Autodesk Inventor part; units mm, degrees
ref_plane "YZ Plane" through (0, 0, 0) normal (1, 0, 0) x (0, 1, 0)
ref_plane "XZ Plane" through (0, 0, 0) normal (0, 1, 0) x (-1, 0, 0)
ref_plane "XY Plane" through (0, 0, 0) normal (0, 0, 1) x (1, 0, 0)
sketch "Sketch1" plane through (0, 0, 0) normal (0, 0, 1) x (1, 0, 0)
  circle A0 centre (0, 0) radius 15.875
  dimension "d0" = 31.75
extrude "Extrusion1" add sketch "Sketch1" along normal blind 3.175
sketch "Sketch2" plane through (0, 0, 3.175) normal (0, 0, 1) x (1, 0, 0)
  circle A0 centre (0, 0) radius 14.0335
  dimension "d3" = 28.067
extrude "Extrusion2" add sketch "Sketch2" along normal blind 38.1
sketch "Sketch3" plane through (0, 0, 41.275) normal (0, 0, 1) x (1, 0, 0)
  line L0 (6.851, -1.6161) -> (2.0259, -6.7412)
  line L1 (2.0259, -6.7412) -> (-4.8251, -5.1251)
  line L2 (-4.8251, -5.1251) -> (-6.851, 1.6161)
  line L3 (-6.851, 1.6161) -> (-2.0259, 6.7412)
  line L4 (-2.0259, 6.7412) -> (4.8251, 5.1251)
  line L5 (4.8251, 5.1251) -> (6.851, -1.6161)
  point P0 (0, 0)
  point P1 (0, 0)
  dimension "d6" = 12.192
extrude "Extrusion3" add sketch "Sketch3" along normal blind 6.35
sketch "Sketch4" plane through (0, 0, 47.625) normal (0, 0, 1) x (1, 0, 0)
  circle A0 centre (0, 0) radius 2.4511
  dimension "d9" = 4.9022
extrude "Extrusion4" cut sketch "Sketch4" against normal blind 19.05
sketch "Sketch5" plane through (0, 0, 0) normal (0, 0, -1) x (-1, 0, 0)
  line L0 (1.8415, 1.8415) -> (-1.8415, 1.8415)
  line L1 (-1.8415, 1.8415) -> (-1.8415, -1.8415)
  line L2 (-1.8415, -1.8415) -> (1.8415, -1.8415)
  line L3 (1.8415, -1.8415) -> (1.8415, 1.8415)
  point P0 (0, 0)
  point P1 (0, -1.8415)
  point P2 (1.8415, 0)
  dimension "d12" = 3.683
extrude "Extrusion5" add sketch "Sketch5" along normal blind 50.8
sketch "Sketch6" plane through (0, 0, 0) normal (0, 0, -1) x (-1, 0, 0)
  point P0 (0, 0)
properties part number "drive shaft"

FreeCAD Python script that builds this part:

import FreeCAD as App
import Part
import Sketcher
from FreeCAD import Vector
Q = App.Units.Quantity

doc = App.newDocument("Part")
params = doc.addObject("Spreadsheet::Sheet", "Params")
for row, (alias, value) in enumerate([
    ("sketch1_diameter", "1.25 in"),
    ("pad1_length", "0.125 in"),
    ("sketch2_diameter", "1.105 in"),
    ("pad2_length", "1.5 in"),
    ("pad3_length", "0.25 in"),
    ("sketch4_diameter", "0.193 in"),
    ("pocket1_length", "0.75 in"),
    ("sketch5_width", "0.145 in"),
    ("pad4_length", "2 in"),
], start=1):
    params.set(f"A{row}", alias)
    params.set(f"B{row}", "=" + value)
    params.setAlias(f"B{row}", alias)

body = doc.addObject("PartDesign::Body", "Body")

# Sketch on XY plane
sketch1 = body.newObject("Sketcher::SketchObject", "Sketch")
sketch1.AttachmentSupport = (doc.getObject("XY_Plane"), [""])
sketch1.MapMode = "FlatFace"
sketch1.addGeometry(Part.Circle(Vector(0, 0, 0), Vector(0, 0, 1), 15.875), False)
sketch1.addConstraint([
    Sketcher.Constraint("Coincident", 0, 3, -1, 1),
    Sketcher.Constraint("Diameter", 0, Q("1.25 in")),
])
sketch1.setExpression("Constraints[1]", "Params.sketch1_diameter")
pad1 = body.newObject("PartDesign::Pad", "Pad")
pad1.Profile = sketch1
pad1.setExpression("Length", "Params.pad1_length")

# Sketch on XY plane
sketch2 = body.newObject("Sketcher::SketchObject", "Sketch001")
sketch2.AttachmentSupport = (doc.getObject("XY_Plane"), [""])
sketch2.MapMode = "FlatFace"
sketch2.AttachmentOffset = App.Placement(Vector(0, 0, 0.125 * 25.4), App.Rotation())
sketch2.addGeometry(Part.Circle(Vector(0, 0, 0), Vector(0, 0, 1), 14.0335), False)
sketch2.addConstraint([
    Sketcher.Constraint("Coincident", 0, 3, -1, 1),
    Sketcher.Constraint("Diameter", 0, Q("1.105 in")),
])
sketch2.setExpression("Constraints[1]", "Params.sketch2_diameter")
pad2 = body.newObject("PartDesign::Pad", "Pad001")
pad2.Profile = sketch2
pad2.setExpression("Length", "Params.pad2_length")

# Sketch on XY plane
sketch3 = body.newObject("Sketcher::SketchObject", "Sketch002")
sketch3.AttachmentSupport = (doc.getObject("XY_Plane"), [""])
sketch3.MapMode = "FlatFace"
sketch3.AttachmentOffset = App.Placement(Vector(0, 0, 1.625 * 25.4), App.Rotation())
sketch3.addGeometry([
    Part.LineSegment(Vector(2.0259, -6.7412, 0), Vector(6.851, -1.6161, 0)),  # 0
    Part.LineSegment(Vector(6.851, -1.6161, 0), Vector(4.8251, 5.1251, 0)),  # 1
    Part.LineSegment(Vector(4.8251, 5.1251, 0), Vector(-2.0259, 6.7412, 0)),  # 2
    Part.LineSegment(Vector(-2.0259, 6.7412, 0), Vector(-6.851, 1.6161, 0)),  # 3
    Part.LineSegment(Vector(-6.851, 1.6161, 0), Vector(-4.8251, -5.1251, 0)),  # 4
    Part.LineSegment(Vector(-4.8251, -5.1251, 0), Vector(2.0259, -6.7412, 0)),  # 5
], False)
sketch3.addConstraint([
    Sketcher.Constraint("Coincident", 0, 2, 1, 1),
    Sketcher.Constraint("Coincident", 1, 2, 2, 1),
    Sketcher.Constraint("Coincident", 2, 2, 3, 1),
    Sketcher.Constraint("Coincident", 3, 2, 4, 1),
    Sketcher.Constraint("Coincident", 4, 2, 5, 1),
    Sketcher.Constraint("Coincident", 5, 2, 0, 1),
    Sketcher.Constraint("Symmetric", 0, 2, 3, 2, -1, 1),
    Sketcher.Constraint("Symmetric", 1, 2, 4, 2, -1, 1),
    Sketcher.Constraint("Symmetric", 2, 2, 5, 2, -1, 1),
    Sketcher.Constraint("Equal", 0, 1),
    Sketcher.Constraint("Equal", 1, 2),
    Sketcher.Constraint("DistanceY", -1, 1, 2, 2, Q("0.2654 in")),
    Sketcher.Constraint("DistanceY", 0, 2, 1, 2, Q("0.2654 in")),
    Sketcher.Constraint("DistanceX", 3, 2, 1, 2, Q("0.4597 in")),
    Sketcher.Constraint("DistanceX", 4, 2, 2, 2, Q("0.1102 in")),
])
pad3 = body.newObject("PartDesign::Pad", "Pad002")
pad3.Profile = sketch3
pad3.setExpression("Length", "Params.pad3_length")

# Sketch on XY plane
sketch4 = body.newObject("Sketcher::SketchObject", "Sketch003")
sketch4.AttachmentSupport = (doc.getObject("XY_Plane"), [""])
sketch4.MapMode = "FlatFace"
sketch4.AttachmentOffset = App.Placement(Vector(0, 0, 1.875 * 25.4), App.Rotation())
sketch4.addGeometry(Part.Circle(Vector(0, 0, 0), Vector(0, 0, 1), 2.4511), False)
sketch4.addConstraint([
    Sketcher.Constraint("Coincident", 0, 3, -1, 1),
    Sketcher.Constraint("Diameter", 0, Q("0.193 in")),
])
sketch4.setExpression("Constraints[1]", "Params.sketch4_diameter")
pocket1 = body.newObject("PartDesign::Pocket", "Pocket")
pocket1.Profile = sketch4
pocket1.setExpression("Length", "Params.pocket1_length")

# Sketch on XY plane
sketch5 = body.newObject("Sketcher::SketchObject", "Sketch004")
sketch5.AttachmentSupport = (doc.getObject("XY_Plane"), [""])
sketch5.MapMode = "FlatFace"
sketch5.addGeometry([
    Part.LineSegment(Vector(-1.8415, -1.8415, 0), Vector(-1.8415, 1.8415, 0)),
    Part.LineSegment(Vector(-1.8415, 1.8415, 0), Vector(1.8415, 1.8415, 0)),
    Part.LineSegment(Vector(1.8415, 1.8415, 0), Vector(1.8415, -1.8415, 0)),
    Part.LineSegment(Vector(1.8415, -1.8415, 0), Vector(-1.8415, -1.8415, 0)),
], False)
sketch5.addConstraint([
    Sketcher.Constraint("Coincident", 0, 2, 1, 1),
    Sketcher.Constraint("Coincident", 1, 2, 2, 1),
    Sketcher.Constraint("Coincident", 2, 2, 3, 1),
    Sketcher.Constraint("Coincident", 3, 2, 0, 1),
    Sketcher.Constraint("Vertical", 0),
    Sketcher.Constraint("Horizontal", 1),
    Sketcher.Constraint("Vertical", 2),
    Sketcher.Constraint("Horizontal", 3),
    Sketcher.Constraint("Symmetric", 0, 2, 2, 2, -1, 1),
    Sketcher.Constraint("Equal", 3, 0),
    Sketcher.Constraint("DistanceX", 1, 1, 1, 2, Q("0.145 in")),
])
sketch5.setExpression("Constraints[10]", "Params.sketch5_width")
pad4 = body.newObject("PartDesign::Pad", "Pad003")
pad4.Profile = sketch5
pad4.setExpression("Length", "Params.pad4_length")
pad4.Reversed = True

doc.recompute()
